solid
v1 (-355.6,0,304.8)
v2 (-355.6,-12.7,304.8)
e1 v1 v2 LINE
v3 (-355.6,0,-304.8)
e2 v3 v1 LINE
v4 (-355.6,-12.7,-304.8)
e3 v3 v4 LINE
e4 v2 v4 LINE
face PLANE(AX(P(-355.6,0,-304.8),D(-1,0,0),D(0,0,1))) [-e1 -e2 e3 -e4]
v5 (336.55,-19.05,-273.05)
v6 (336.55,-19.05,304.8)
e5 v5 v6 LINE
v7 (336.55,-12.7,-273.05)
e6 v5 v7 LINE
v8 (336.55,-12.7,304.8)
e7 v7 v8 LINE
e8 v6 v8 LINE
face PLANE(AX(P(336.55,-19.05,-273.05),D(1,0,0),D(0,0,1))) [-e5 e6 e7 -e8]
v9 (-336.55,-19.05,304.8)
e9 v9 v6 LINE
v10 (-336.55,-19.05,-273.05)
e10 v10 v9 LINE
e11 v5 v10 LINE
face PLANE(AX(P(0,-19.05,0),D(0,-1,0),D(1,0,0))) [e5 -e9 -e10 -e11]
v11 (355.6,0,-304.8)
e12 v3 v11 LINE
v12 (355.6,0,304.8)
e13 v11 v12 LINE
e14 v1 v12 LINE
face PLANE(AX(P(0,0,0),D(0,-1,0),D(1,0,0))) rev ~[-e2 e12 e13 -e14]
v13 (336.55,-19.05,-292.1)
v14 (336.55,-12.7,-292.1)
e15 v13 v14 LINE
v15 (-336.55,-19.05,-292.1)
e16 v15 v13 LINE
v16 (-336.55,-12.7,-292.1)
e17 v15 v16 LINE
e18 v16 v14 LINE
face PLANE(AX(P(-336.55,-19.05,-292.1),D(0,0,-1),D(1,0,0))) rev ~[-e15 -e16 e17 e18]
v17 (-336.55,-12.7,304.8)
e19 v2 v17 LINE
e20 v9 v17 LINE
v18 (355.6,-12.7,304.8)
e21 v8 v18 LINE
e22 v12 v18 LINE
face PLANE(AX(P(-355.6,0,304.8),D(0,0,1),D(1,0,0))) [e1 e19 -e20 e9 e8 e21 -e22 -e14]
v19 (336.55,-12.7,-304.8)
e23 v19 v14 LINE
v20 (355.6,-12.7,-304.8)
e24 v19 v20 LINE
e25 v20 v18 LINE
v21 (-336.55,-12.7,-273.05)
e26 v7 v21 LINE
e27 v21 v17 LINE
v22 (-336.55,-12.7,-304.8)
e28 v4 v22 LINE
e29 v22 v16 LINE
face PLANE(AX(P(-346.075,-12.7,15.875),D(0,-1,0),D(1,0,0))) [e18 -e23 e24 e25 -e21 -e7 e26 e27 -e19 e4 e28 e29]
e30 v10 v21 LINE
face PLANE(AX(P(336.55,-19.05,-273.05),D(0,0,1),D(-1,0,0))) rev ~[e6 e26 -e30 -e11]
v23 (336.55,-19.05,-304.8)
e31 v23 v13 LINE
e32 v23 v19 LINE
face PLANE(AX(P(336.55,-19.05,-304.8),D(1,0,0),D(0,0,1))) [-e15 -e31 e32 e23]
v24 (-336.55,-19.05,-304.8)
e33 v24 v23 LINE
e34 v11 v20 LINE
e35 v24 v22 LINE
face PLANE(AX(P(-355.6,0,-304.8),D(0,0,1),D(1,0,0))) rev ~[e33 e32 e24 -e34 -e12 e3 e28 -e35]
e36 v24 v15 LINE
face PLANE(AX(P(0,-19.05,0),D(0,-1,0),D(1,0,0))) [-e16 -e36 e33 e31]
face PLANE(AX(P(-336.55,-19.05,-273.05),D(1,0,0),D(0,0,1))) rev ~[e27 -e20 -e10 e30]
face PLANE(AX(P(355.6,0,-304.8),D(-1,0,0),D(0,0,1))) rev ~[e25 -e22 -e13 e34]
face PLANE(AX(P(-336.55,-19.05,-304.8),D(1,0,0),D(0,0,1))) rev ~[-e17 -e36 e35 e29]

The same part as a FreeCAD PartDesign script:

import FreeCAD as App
import Part
import Sketcher
from FreeCAD import Vector
Q = App.Units.Quantity


def add_polygon(sketch, points):
    """Adds a closed chain of lines whose ends are joined by coincident constraints."""
    first, n = sketch.GeometryCount, len(points)
    for a, b in zip(points, points[1:] + points[:1]):
        sketch.addGeometry(Part.LineSegment(App.Vector(*a, 0), App.Vector(*b, 0)), False)
    for i in range(n):
        sketch.addConstraint(Sketcher.Constraint("Coincident", first + i, 2, first + (i + 1) % n, 1))

doc = App.newDocument("Part")
body = doc.addObject("PartDesign::Body", "Body")

sketch1 = body.newObject("Sketcher::SketchObject", "Sketch")
sketch1.AttachmentSupport = (doc.getObject("XZ_Plane"), [""])
sketch1.MapMode = "FlatFace"
add_polygon(sketch1, [(-356, 305), (-356, -305), (356, -305), (356, 305)])
sketch1.addConstraint([
    Sketcher.Constraint("Vertical", 0),
    Sketcher.Constraint("Horizontal", 1),
    Sketcher.Constraint("Vertical", 2),
    Sketcher.Constraint("Horizontal", 3),
    Sketcher.Constraint("Symmetric", 0, 2, 2, 2, -1, 1),
    Sketcher.Constraint("DistanceX", 1, 1, 1, 2, Q("28 in")),
    Sketcher.Constraint("DistanceY", 0, 2, 0, 1, Q("24 in")),
])
pad1 = body.newObject("PartDesign::Pad", "Pad")
pad1.Profile = sketch1
pad1.Length = Q("0.75 in")

sketch2 = body.newObject("Sketcher::SketchObject", "Sketch001")
sketch2.AttachmentSupport = (doc.getObject("XZ_Plane"), [""])
sketch2.MapMode = "FlatFace"
sketch2.AttachmentOffset = App.Placement(Vector(0, 0, 0.75 * 25.4), App.Rotation())
add_polygon(sketch2, [(-356, 305), (-356, -305), (-337, -305), (-337, -292), (337, -292), (337, -305), (356, -305), (356, 305), (337, 305), (337, -273), (-337, -273), (-337, 305)])
sketch2.addConstraint([
    Sketcher.Constraint("Vertical", 0),
    Sketcher.Constraint("Horizontal", 1),
    Sketcher.Constraint("Vertical", 2),
    Sketcher.Constraint("Horizontal", 3),
    Sketcher.Constraint("Vertical", 4),
    Sketcher.Constraint("Horizontal", 5),
    Sketcher.Constraint("Vertical", 6),
    Sketcher.Constraint("Horizontal", 7),
    Sketcher.Constraint("Vertical", 8),
    Sketcher.Constraint("Horizontal", 9),
    Sketcher.Constraint("Vertical", 10),
    Sketcher.Constraint("Horizontal", 11),
    Sketcher.Constraint("Symmetric", 0, 2, 6, 2, -1, 1),
    Sketcher.Constraint("Symmetric", 4, 2, 10, 2, -1, 1),
    Sketcher.Constraint("Symmetric", 1, 2, 4, 2, -2),
    Sketcher.Constraint("Vertical", 4, 2, 7, 2),
    Sketcher.Constraint("DistanceY", 0, 2, 0, 1, Q("24 in")),
    Sketcher.Constraint("DistanceX", 3, 1, 3, 2, Q("26.5 in")),
    Sketcher.Constraint("DistanceY", 2, 1, 2, 2, Q("0.5 in")),
    Sketcher.Constraint("DistanceX", 0, 2, -1, 1, Q("14 in")),
    Sketcher.Constraint("DistanceY", 8, 2, 8, 1, Q("22.75 in")),
])
pocket1 = body.newObject("PartDesign::Pocket", "Pocket")
pocket1.Profile = sketch2
pocket1.Length = Q("0.25 in")

doc.recompute()
